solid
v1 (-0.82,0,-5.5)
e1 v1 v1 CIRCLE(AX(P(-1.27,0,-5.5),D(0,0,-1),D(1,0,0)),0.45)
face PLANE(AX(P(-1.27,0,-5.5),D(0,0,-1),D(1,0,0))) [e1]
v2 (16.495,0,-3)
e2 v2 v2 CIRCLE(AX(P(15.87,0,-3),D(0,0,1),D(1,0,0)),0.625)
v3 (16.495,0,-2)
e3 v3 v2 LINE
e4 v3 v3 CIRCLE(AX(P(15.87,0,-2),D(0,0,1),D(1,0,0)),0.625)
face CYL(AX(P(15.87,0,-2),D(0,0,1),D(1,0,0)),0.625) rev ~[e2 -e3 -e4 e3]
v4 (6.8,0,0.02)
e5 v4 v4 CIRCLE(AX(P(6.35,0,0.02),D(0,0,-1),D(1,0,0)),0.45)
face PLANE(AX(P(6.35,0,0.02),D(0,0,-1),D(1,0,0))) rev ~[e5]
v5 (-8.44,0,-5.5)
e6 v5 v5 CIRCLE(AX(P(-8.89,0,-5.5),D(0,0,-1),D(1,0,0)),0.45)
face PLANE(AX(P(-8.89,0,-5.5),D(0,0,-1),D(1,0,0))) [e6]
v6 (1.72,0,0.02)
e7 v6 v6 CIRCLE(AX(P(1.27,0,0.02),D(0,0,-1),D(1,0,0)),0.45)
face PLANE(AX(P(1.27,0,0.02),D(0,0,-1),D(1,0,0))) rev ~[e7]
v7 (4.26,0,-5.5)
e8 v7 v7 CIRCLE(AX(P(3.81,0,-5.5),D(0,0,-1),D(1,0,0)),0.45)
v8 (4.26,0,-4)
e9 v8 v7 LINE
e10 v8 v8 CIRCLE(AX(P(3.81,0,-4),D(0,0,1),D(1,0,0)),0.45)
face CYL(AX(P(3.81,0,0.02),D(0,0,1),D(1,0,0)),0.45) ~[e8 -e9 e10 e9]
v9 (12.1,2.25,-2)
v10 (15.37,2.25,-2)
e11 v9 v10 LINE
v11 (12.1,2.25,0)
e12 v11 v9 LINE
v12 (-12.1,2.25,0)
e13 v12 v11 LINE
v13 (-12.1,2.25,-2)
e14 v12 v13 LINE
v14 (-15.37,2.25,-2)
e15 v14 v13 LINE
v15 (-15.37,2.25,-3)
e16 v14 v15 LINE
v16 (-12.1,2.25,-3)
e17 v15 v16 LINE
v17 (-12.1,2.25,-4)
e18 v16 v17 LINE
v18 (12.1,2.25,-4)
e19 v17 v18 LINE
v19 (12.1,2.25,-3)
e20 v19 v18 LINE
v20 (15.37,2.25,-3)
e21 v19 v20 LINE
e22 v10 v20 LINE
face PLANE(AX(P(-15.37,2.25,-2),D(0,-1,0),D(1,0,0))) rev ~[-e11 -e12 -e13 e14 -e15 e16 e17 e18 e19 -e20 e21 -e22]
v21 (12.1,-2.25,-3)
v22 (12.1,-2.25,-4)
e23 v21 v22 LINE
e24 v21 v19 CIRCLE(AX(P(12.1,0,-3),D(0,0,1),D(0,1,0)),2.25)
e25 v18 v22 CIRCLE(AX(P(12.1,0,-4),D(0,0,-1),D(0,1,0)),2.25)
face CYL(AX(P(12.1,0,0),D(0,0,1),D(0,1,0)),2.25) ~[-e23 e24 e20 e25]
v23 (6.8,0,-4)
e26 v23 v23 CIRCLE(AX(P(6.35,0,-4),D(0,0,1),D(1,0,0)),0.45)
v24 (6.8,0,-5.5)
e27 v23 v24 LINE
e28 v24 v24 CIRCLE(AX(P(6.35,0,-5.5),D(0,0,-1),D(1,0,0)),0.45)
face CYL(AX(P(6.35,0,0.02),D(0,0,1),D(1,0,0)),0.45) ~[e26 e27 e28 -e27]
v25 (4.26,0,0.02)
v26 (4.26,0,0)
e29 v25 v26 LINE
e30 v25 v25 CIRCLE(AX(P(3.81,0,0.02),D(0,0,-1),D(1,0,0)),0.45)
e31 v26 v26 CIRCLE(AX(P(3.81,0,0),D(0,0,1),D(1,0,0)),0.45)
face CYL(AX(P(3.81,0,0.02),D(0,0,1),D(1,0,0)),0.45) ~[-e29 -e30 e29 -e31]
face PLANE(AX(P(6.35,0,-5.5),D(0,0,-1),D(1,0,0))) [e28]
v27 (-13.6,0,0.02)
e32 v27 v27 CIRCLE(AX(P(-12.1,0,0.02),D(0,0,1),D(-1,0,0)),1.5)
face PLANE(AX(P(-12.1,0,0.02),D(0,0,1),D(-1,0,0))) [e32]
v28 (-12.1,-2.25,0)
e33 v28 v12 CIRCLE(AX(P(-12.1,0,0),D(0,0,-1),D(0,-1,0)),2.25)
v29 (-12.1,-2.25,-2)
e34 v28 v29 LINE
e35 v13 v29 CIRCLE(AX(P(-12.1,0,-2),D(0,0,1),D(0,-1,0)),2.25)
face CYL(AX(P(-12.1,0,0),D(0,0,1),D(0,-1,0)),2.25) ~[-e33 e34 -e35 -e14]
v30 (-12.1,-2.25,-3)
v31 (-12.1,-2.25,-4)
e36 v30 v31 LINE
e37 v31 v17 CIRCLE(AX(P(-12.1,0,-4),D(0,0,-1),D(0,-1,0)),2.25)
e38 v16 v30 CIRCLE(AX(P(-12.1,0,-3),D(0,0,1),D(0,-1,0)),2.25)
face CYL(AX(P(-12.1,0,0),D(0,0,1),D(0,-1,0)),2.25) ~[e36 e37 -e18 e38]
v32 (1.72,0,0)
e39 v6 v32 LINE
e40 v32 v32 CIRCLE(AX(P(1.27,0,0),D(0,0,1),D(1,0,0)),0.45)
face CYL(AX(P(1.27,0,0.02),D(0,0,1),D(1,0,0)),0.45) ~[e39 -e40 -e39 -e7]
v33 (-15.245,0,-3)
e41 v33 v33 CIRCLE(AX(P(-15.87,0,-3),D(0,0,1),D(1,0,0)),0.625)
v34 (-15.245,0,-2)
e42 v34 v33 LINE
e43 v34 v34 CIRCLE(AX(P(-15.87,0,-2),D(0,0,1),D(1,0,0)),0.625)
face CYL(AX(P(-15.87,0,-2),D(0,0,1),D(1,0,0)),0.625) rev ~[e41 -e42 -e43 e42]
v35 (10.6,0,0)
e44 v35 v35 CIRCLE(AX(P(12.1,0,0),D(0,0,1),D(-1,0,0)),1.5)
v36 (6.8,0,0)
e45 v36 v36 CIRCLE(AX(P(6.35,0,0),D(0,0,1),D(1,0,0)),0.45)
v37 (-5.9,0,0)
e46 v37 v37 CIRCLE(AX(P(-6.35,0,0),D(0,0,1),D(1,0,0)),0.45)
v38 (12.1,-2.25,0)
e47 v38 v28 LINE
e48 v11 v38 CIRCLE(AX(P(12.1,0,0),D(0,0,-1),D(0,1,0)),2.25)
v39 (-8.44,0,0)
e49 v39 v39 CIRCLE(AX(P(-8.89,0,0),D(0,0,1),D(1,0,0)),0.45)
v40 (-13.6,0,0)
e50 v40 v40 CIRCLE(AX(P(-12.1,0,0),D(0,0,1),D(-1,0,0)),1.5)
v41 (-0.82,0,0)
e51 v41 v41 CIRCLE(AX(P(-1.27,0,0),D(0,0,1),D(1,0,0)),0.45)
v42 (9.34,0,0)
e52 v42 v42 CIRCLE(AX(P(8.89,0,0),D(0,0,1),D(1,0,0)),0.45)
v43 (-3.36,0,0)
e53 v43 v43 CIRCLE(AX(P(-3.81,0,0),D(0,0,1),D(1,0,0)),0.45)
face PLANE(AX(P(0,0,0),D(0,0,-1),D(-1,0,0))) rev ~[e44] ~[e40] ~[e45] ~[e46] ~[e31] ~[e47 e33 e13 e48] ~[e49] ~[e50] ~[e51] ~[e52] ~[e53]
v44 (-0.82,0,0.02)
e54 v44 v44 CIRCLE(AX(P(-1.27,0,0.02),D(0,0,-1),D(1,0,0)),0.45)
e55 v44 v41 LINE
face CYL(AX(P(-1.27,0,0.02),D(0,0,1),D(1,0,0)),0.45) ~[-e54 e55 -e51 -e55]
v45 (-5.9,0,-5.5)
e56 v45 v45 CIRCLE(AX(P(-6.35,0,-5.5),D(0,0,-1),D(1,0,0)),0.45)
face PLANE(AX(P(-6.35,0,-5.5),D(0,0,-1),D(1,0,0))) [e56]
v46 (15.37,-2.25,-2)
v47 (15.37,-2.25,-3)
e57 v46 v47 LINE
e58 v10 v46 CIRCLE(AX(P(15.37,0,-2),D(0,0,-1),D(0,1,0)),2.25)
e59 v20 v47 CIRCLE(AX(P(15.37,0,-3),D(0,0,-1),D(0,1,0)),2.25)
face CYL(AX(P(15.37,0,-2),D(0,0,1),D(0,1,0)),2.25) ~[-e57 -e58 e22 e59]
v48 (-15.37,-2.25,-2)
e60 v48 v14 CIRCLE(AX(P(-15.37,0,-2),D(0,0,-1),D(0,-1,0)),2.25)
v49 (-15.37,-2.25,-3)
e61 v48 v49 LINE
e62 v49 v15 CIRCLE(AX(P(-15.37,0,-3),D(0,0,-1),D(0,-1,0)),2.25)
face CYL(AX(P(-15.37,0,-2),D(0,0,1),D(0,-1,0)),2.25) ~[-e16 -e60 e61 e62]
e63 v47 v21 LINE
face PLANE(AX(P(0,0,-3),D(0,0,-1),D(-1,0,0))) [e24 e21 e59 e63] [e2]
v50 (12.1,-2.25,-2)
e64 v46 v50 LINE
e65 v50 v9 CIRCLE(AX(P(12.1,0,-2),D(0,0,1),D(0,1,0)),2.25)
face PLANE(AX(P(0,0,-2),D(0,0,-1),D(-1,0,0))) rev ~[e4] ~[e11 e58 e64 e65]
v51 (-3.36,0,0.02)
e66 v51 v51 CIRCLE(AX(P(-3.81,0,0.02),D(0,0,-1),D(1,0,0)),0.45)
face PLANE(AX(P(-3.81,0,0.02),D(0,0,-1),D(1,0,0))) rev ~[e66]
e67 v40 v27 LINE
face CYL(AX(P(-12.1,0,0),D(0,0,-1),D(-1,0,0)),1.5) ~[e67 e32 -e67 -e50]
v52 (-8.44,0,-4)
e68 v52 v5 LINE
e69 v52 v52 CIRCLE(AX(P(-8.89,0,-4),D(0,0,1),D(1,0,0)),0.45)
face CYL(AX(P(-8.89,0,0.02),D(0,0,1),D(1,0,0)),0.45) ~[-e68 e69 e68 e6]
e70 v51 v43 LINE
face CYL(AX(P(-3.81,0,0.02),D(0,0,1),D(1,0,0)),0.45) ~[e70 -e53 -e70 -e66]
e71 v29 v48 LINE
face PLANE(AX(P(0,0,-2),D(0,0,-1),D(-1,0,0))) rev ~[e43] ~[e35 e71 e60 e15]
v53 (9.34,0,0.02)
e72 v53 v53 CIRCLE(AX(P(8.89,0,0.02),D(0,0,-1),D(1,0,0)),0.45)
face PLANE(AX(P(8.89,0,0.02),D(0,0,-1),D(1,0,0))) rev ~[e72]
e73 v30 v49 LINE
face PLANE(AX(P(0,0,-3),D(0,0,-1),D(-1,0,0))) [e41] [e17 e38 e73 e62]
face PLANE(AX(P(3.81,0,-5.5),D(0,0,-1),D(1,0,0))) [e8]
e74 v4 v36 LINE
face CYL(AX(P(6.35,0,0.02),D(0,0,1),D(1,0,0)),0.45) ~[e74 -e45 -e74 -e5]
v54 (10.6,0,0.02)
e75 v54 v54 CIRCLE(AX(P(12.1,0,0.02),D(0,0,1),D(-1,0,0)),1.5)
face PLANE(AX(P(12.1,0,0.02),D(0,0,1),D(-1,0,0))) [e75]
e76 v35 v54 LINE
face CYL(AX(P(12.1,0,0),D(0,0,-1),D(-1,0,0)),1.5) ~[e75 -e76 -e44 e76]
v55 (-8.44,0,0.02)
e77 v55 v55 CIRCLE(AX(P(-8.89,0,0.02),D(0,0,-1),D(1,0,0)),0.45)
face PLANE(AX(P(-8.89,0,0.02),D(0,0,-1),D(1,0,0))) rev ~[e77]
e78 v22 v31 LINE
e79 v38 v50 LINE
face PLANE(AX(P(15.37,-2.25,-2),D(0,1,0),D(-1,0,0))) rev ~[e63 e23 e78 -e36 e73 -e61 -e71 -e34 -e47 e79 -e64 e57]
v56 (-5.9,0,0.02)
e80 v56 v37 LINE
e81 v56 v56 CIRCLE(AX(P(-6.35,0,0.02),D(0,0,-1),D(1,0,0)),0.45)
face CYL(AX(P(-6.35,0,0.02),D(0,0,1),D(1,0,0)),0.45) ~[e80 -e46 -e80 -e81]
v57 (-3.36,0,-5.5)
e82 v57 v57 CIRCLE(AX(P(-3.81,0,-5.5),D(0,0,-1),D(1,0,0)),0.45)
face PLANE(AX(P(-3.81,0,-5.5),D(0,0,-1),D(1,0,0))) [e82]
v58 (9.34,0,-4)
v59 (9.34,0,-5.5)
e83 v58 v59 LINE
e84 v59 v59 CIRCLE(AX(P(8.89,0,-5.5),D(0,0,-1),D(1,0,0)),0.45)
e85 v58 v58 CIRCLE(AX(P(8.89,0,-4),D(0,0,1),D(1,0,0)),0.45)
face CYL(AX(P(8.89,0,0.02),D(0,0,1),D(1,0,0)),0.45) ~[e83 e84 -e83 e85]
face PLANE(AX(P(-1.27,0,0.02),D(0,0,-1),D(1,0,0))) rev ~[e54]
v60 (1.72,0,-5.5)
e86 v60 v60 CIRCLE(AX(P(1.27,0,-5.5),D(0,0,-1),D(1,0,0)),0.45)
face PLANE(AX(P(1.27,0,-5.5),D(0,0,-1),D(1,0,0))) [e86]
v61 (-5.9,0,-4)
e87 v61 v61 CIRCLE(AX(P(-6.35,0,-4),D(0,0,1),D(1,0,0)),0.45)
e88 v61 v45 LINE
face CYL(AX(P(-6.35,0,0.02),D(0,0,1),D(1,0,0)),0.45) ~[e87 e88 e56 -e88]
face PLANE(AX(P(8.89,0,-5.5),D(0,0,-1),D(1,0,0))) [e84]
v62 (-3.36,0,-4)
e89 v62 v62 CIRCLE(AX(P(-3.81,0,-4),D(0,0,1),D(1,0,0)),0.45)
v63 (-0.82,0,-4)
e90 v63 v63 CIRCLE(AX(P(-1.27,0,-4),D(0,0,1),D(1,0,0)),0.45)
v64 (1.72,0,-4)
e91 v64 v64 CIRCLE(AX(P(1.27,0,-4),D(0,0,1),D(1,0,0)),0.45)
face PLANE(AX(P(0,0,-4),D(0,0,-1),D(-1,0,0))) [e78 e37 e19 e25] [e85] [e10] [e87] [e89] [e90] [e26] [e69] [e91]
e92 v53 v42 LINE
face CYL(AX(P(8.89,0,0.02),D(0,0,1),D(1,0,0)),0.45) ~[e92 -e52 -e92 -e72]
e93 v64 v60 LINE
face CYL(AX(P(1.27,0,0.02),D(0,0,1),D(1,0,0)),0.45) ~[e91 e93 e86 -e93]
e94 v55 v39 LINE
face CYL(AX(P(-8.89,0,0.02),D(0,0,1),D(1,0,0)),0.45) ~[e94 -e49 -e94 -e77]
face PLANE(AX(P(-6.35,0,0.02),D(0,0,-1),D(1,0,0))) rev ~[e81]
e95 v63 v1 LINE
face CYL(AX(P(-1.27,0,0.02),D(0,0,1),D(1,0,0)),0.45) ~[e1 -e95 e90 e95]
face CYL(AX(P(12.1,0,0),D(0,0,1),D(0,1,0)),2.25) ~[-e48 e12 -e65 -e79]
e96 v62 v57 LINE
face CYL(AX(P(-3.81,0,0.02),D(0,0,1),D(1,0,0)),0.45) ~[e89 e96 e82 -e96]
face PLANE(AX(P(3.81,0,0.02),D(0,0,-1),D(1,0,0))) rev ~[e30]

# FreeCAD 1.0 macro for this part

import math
import FreeCAD as App
import Part
import Sketcher

V = App.Vector
Q = App.Units.Quantity

doc = App.newDocument("Part")
params = doc.addObject("Spreadsheet::Sheet", "Params")
for row, (alias, value) in enumerate([
    ("sketch1_radius", "2.25 mm"),
    ("sketch1_width", "24.2 mm"),
    ("pad1_length", "4 mm"),
    ("sketch2_diameter", "1.25 mm"),
    ("sketch2_radius", "2.25 mm"),
    ("sketch2_width", "30.74 mm"),
    ("pad2_length", "1 mm"),
    ("sketch3_diameter", "0.9 mm"),
    ("pad3_length", "1.5 mm"),
    ("pad3_length2", "4.02 mm"),
    ("sketch4_diameter", "3 mm"),
    ("pad4_length", "0.02 mm"),
], start=1):
    params.set(f"A{row}", alias)
    params.set(f"B{row}", "=" + value)
    params.setAlias(f"B{row}", alias)

body = doc.addObject("PartDesign::Body", "Body")

sketch1 = body.newObject("Sketcher::SketchObject", "Sketch")
sketch1.AttachmentSupport = (doc.getObject("XY_Plane"), [""])
sketch1.MapMode = "FlatFace"
sketch1.addGeometry([
    Part.LineSegment(V(12.1, 2.2, 0), V(-12.1, 2.2, 0)),
    Part.ArcOfCircle(Part.Circle(V(-12.1, 0, 0), V(0, 0, 1), 2.2), math.radians(90), math.radians(270)),
    Part.LineSegment(V(-12.1, -2.2, 0), V(12.1, -2.2, 0)),
    Part.ArcOfCircle(Part.Circle(V(12.1, 0, 0), V(0, 0, 1), 2.2), math.radians(-90), math.radians(90)),
], False)
sketch1.addConstraint([
    Sketcher.Constraint("Tangent", 0, 2, 1, 1),
    Sketcher.Constraint("Tangent", 1, 2, 2, 1),
    Sketcher.Constraint("Tangent", 2, 2, 3, 1),
    Sketcher.Constraint("Tangent", 3, 2, 0, 1),
    Sketcher.Constraint("Horizontal", 0),
    Sketcher.Constraint("Horizontal", 2),
    Sketcher.Constraint("Symmetric", 1, 3, 3, 3, -1, 1),
    Sketcher.Constraint("Radius", 1, Q("2.25 mm")),
    Sketcher.Constraint("DistanceX", 0, 2, 0, 1, Q("24.2 mm")),
])
sketch1.setExpression("Constraints[7]", "Params.sketch1_radius")
sketch1.setExpression("Constraints[8]", "Params.sketch1_width")
pad1 = body.newObject("PartDesign::Pad", "Pad")
pad1.Profile = sketch1
pad1.setExpression("Length", "Params.pad1_length")
pad1.Reversed = True

sketch2 = body.newObject("Sketcher::SketchObject", "Sketch001")
sketch2.AttachmentSupport = (doc.getObject("XY_Plane"), [""])
sketch2.MapMode = "FlatFace"
sketch2.AttachmentOffset = App.Placement(V(0, 0, -2), App.Rotation())
sketch2.addGeometry([
    Part.LineSegment(V(15.4, 2.2, 0), V(-15.4, 2.2, 0)),
    Part.ArcOfCircle(Part.Circle(V(-15.4, 0, 0), V(0, 0, 1), 2.2), math.radians(90), math.radians(270)),
    Part.LineSegment(V(-15.4, -2.2, 0), V(15.4, -2.2, 0)),
    Part.ArcOfCircle(Part.Circle(V(15.4, 0, 0), V(0, 0, 1), 2.2), math.radians(-90), math.radians(90)),
    Part.Circle(V(15.9, 0, 0), V(0, 0, 1), 0.6),
    Part.Circle(V(-15.9, 0, 0), V(0, 0, 1), 0.6),
], False)
sketch2.addConstraint([
    Sketcher.Constraint("Tangent", 0, 2, 1, 1),
    Sketcher.Constraint("Tangent", 1, 2, 2, 1),
    Sketcher.Constraint("Tangent", 2, 2, 3, 1),
    Sketcher.Constraint("Tangent", 3, 2, 0, 1),
    Sketcher.Constraint("Horizontal", 0),
    Sketcher.Constraint("Horizontal", 2),
    Sketcher.Constraint("Equal", 4, 5),
    Sketcher.Constraint("Symmetric", 1, 3, 3, 3, -1, 1),
    Sketcher.Constraint("Symmetric", 4, 3, 5, 3, -1, 1),
    Sketcher.Constraint("PointOnObject", 4, 3, -1),
    Sketcher.Constraint("Diameter", 4, Q("1.25 mm")),
    Sketcher.Constraint("Radius", 1, Q("2.25 mm")),
    Sketcher.Constraint("DistanceX", 0, 2, 0, 1, Q("30.74 mm")),
    Sketcher.Constraint("DistanceX", 3, 3, 4, 3, Q("0.5 mm")),
])
sketch2.setExpression("Constraints[10]", "Params.sketch2_diameter")
sketch2.setExpression("Constraints[11]", "Params.sketch2_radius")
sketch2.setExpression("Constraints[12]", "Params.sketch2_width")
pad2 = body.newObject("PartDesign::Pad", "Pad001")
pad2.Profile = sketch2
pad2.setExpression("Length", "Params.pad2_length")
pad2.Reversed = True

sketch3 = body.newObject("Sketcher::SketchObject", "Sketch002")
sketch3.AttachmentSupport = (doc.getObject("XY_Plane"), [""])
sketch3.MapMode = "FlatFace"
sketch3.AttachmentOffset = App.Placement(V(0, 0, -4), App.Rotation())
sketch3.addGeometry([
    Part.Circle(V(8.89, 0, 0), V(0, 0, 1), 0.45),
    Part.Circle(V(6.35, 0, 0), V(0, 0, 1), 0.45),
    Part.Circle(V(3.81, 0, 0), V(0, 0, 1), 0.45),
    Part.Circle(V(1.27, 0, 0), V(0, 0, 1), 0.45),
    Part.Circle(V(-1.27, 0, 0), V(0, 0, 1), 0.45),
    Part.Circle(V(-3.81, 0, 0), V(0, 0, 1), 0.45),
    Part.Circle(V(-6.35, 0, 0), V(0, 0, 1), 0.45),
    Part.Circle(V(-8.89, 0, 0), V(0, 0, 1), 0.45),
], False)
sketch3.addConstraint([
    Sketcher.Constraint("Equal", 0, 1),
    Sketcher.Constraint("Equal", 1, 2),
    Sketcher.Constraint("Equal", 2, 3),
    Sketcher.Constraint("Equal", 3, 4),
    Sketcher.Constraint("Equal", 4, 5),
    Sketcher.Constraint("Equal", 5, 6),
    Sketcher.Constraint("Equal", 6, 7),
    Sketcher.Constraint("Symmetric", 3, 3, 4, 3, -1, 1),
    Sketcher.Constraint("Symmetric", 2, 3, 5, 3, -1, 1),
    Sketcher.Constraint("Symmetric", 1, 3, 6, 3, -1, 1),
    Sketcher.Constraint("Symmetric", 0, 3, 7, 3, -1, 1),
    Sketcher.Constraint("PointOnObject", 0, 3, -1),
    Sketcher.Constraint("PointOnObject", 1, 3, -1),
    Sketcher.Constraint("PointOnObject", 2, 3, -1),
    Sketcher.Constraint("PointOnObject", 3, 3, -1),
    Sketcher.Constraint("Diameter", 0, Q("0.9 mm")),
    Sketcher.Constraint("DistanceX", 5, 3, 0, 3, Q("12.7 mm")),
    Sketcher.Constraint("DistanceX", 6, 3, 1, 3, Q("12.7 mm")),
    Sketcher.Constraint("DistanceX", -1, 1, 0, 3, Q("8.89 mm")),
    Sketcher.Constraint("DistanceX", -1, 1, 3, 3, Q("1.27 mm")),
])
sketch3.setExpression("Constraints[15]", "Params.sketch3_diameter")
pad3 = body.newObject("PartDesign::Pad", "Pad002")
pad3.Profile = sketch3
pad3.Type = "TwoLengths"
pad3.setExpression("Length", "Params.pad3_length")
pad3.setExpression("Length2", "Params.pad3_length2")
pad3.Reversed = True

sketch4 = body.newObject("Sketcher::SketchObject", "Sketch003")
sketch4.AttachmentSupport = (doc.getObject("XY_Plane"), [""])
sketch4.MapMode = "FlatFace"
sketch4.addGeometry([
    Part.Circle(V(-12.1, 0, 0), V(0, 0, 1), 1.5),
    Part.Circle(V(12.1, 0, 0), V(0, 0, 1), 1.5),
], False)
sketch4.addConstraint([
    Sketcher.Constraint("Equal", 0, 1),
    Sketcher.Constraint("Symmetric", 0, 3, 1, 3, -1, 1),
    Sketcher.Constraint("PointOnObject", 0, 3, -1),
    Sketcher.Constraint("Diameter", 0, Q("3 mm")),
    Sketcher.Constraint("DistanceX", 0, 3, -1, 1, Q("12.1 mm")),
])
sketch4.setExpression("Constraints[3]", "Params.sketch4_diameter")
pad4 = body.newObject("PartDesign::Pad", "Pad003")
pad4.Profile = sketch4
pad4.setExpression("Length", "Params.pad4_length")

doc.recompute()
